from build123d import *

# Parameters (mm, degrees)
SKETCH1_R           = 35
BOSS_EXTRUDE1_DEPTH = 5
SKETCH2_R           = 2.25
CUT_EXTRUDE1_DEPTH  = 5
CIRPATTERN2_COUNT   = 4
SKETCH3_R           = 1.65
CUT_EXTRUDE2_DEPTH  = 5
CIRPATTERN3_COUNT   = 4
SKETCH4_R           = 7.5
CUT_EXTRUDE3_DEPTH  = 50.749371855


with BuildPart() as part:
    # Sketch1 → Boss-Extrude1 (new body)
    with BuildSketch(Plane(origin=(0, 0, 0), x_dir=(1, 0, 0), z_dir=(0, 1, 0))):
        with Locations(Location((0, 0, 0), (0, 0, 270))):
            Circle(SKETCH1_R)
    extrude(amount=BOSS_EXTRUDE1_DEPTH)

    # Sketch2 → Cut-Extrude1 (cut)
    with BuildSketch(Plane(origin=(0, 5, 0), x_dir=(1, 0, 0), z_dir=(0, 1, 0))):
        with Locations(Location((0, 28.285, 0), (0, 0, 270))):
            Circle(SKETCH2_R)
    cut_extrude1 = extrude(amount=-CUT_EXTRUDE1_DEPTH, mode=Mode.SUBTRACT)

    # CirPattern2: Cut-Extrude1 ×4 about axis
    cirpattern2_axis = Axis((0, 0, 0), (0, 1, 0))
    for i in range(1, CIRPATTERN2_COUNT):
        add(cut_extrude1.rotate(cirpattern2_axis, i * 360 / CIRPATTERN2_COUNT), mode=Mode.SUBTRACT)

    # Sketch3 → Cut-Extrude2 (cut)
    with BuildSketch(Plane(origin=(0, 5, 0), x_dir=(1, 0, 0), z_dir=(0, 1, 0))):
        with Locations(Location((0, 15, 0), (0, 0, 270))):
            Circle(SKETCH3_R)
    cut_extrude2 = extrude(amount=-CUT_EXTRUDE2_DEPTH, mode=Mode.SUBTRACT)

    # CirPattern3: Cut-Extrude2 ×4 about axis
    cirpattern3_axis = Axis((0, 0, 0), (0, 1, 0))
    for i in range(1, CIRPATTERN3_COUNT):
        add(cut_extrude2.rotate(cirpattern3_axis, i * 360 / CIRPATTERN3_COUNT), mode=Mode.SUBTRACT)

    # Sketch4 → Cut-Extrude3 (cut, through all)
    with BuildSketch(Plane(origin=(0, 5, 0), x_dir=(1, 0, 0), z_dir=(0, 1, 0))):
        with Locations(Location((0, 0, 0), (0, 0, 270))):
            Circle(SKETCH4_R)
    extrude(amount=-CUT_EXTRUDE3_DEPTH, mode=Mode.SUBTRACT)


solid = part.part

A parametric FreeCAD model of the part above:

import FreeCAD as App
import Part
import Sketcher
from FreeCAD import Vector

doc = App.newDocument("Part")
body = doc.addObject("PartDesign::Body", "Body")

sketch1 = body.newObject("Sketcher::SketchObject", "Sketch")
sketch1.AttachmentSupport = (doc.getObject("XZ_Plane"), [""])
sketch1.MapMode = "FlatFace"
sketch1.addGeometry(Part.Circle(Vector(0, 0, 0), Vector(0, 0, 1), 35), False)
sketch1.addConstraint([
    Sketcher.Constraint("Coincident", 0, 3, -1, 1),
    Sketcher.Constraint("Diameter", 0, 70.0),
])
pad1 = body.newObject("PartDesign::Pad", "Pad")
pad1.Profile = sketch1
pad1.Length = 5
pad1.Reversed = True

sketch2 = body.newObject("Sketcher::SketchObject", "Sketch001")
sketch2.AttachmentSupport = (doc.getObject("XZ_Plane"), [""])
sketch2.MapMode = "FlatFace"
sketch2.AttachmentOffset = App.Placement(Vector(0, 0, -5), App.Rotation())
sketch2.addGeometry(Part.Circle(Vector(0, -28.3, 0), Vector(0, 0, 1), 2.2), False)
sketch2.addConstraint([
    Sketcher.Constraint("PointOnObject", 0, 3, -2),
    Sketcher.Constraint("Diameter", 0, 4.5),
    Sketcher.Constraint("DistanceY", 0, 3, -1, 1, 28.285),
])
pocket1 = body.newObject("PartDesign::Pocket", "Pocket")
pocket1.Profile = sketch2
pocket1.Length = 5
pocket1.Reversed = True
doc.recompute()

polarpattern = body.newObject("PartDesign::PolarPattern", "PolarPattern")
polarpattern.Originals = [pocket1]
polarpattern.Axis = (doc.getObject("Y_Axis"), [""])
polarpattern.Angle = 360
polarpattern.Occurrences = 4
body.Tip = polarpattern

sketch3 = body.newObject("Sketcher::SketchObject", "Sketch002")
sketch3.AttachmentSupport = (doc.getObject("XZ_Plane"), [""])
sketch3.MapMode = "FlatFace"
sketch3.AttachmentOffset = App.Placement(Vector(0, 0, -5), App.Rotation())
sketch3.addGeometry(Part.Circle(Vector(0, -15, 0), Vector(0, 0, 1), 1.6), False)
sketch3.addConstraint([
    Sketcher.Constraint("PointOnObject", 0, 3, -2),
    Sketcher.Constraint("Diameter", 0, 3.3),
    Sketcher.Constraint("DistanceY", 0, 3, -1, 1, 15.0),
])
pocket2 = body.newObject("PartDesign::Pocket", "Pocket001")
pocket2.Profile = sketch3
pocket2.Length = 5
pocket2.Reversed = True
doc.recompute()

polarpattern2 = body.newObject("PartDesign::PolarPattern", "PolarPattern001")
polarpattern2.Originals = [pocket2]
polarpattern2.Axis = (doc.getObject("Y_Axis"), [""])
polarpattern2.Angle = 360
polarpattern2.Occurrences = 4
body.Tip = polarpattern2

sketch4 = body.newObject("Sketcher::SketchObject", "Sketch003")
sketch4.AttachmentSupport = (doc.getObject("XZ_Plane"), [""])
sketch4.MapMode = "FlatFace"
sketch4.AttachmentOffset = App.Placement(Vector(0, 0, -5), App.Rotation())
sketch4.addGeometry(Part.Circle(Vector(0, 0, 0), Vector(0, 0, 1), 8), False)
sketch4.addConstraint([
    Sketcher.Constraint("Coincident", 0, 3, -1, 1),
    Sketcher.Constraint("Diameter", 0, 15.0),
])
pocket3 = body.newObject("PartDesign::Pocket", "Pocket002")
pocket3.Profile = sketch4
pocket3.Type = "ThroughAll"
pocket3.Reversed = True

doc.recompute()
